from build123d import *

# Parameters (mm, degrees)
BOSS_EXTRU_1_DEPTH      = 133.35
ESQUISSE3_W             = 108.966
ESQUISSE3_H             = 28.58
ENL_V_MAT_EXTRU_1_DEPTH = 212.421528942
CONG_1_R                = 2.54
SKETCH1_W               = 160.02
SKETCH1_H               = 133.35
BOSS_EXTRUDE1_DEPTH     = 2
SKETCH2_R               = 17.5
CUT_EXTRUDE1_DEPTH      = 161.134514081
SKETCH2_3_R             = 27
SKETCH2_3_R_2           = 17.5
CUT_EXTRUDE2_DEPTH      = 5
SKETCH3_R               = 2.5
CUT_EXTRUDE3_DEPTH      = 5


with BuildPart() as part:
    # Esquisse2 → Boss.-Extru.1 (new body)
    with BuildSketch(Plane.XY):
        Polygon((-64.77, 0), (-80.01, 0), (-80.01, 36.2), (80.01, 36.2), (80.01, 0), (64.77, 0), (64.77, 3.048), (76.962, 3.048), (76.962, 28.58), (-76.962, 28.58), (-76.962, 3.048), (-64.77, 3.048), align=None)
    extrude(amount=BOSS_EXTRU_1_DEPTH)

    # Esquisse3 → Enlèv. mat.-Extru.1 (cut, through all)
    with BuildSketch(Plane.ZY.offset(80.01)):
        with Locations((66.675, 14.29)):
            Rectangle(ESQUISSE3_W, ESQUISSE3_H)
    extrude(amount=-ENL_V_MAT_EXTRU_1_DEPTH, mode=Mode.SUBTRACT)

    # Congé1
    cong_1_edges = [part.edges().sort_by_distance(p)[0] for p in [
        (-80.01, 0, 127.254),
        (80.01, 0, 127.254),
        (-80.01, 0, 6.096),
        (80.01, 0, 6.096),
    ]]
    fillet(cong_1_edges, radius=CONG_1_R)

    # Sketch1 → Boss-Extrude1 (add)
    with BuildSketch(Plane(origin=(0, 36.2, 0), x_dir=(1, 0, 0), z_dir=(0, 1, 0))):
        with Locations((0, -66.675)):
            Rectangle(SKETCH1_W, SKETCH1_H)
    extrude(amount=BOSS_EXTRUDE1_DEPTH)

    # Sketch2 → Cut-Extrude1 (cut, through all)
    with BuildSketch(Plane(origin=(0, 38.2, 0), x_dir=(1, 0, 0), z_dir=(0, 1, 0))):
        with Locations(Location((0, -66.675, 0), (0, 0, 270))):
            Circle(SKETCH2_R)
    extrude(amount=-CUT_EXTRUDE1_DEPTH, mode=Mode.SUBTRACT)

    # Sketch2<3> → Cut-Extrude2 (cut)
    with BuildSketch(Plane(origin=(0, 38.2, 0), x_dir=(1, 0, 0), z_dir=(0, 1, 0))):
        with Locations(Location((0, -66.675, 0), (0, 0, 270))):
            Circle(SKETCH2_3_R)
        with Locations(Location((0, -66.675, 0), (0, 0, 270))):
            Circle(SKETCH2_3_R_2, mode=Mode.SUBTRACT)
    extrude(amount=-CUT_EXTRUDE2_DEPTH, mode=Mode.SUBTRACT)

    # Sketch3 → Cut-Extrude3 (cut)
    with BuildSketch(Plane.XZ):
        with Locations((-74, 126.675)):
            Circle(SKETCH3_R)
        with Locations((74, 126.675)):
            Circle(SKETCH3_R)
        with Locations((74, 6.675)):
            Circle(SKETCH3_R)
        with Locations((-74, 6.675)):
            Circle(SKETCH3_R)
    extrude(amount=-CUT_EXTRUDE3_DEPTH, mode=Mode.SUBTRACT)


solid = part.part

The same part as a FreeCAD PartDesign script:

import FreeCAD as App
import Part
import Sketcher
from FreeCAD import Vector
Q = App.Units.Quantity


def edges_at(feature, points):
    """Names of the edges that pass closest to the given points."""
    edges = feature.Shape.Edges
    near = lambda p: min(range(len(edges)), key=lambda i: edges[i].distToShape(Part.Vertex(*p))[0])
    return sorted({f"Edge{near(p) + 1}" for p in points})

doc = App.newDocument("Part")
body = doc.addObject("PartDesign::Body", "Body")

sketch1 = doc.addObject("Sketcher::SketchObject", "Sketch")
body.addObject(sketch1)
sketch1.AttachmentSupport = (doc.XY_Plane, [""])
sketch1.MapMode = "FlatFace"
sketch1.addGeometry([
    Part.LineSegment(Vector(-80, 0, 0), Vector(-64.8, 0, 0)),
    Part.LineSegment(Vector(-64.8, 0, 0), Vector(-64.8, 3, 0)),
    Part.LineSegment(Vector(-64.8, 3, 0), Vector(-77, 3, 0)),
    Part.LineSegment(Vector(-77, 3, 0), Vector(-77, 28.6, 0)),
    Part.LineSegment(Vector(-77, 28.6, 0), Vector(77, 28.6, 0)),
    Part.LineSegment(Vector(77, 28.6, 0), Vector(77, 3, 0)),
    Part.LineSegment(Vector(77, 3, 0), Vector(64.8, 3, 0)),
    Part.LineSegment(Vector(64.8, 3, 0), Vector(64.8, 0, 0)),
    Part.LineSegment(Vector(64.8, 0, 0), Vector(80, 0, 0)),
    Part.LineSegment(Vector(80, 0, 0), Vector(80, 36.2, 0)),
    Part.LineSegment(Vector(80, 36.2, 0), Vector(-80, 36.2, 0)),
    Part.LineSegment(Vector(-80, 36.2, 0), Vector(-80, 0, 0)),
], False)
sketch1.addConstraint([
    Sketcher.Constraint("Coincident", 0, 2, 1, 1),
    Sketcher.Constraint("Coincident", 1, 2, 2, 1),
    Sketcher.Constraint("Coincident", 2, 2, 3, 1),
    Sketcher.Constraint("Coincident", 3, 2, 4, 1),
    Sketcher.Constraint("Coincident", 4, 2, 5, 1),
    Sketcher.Constraint("Coincident", 5, 2, 6, 1),
    Sketcher.Constraint("Coincident", 6, 2, 7, 1),
    Sketcher.Constraint("Coincident", 7, 2, 8, 1),
    Sketcher.Constraint("Coincident", 8, 2, 9, 1),
    Sketcher.Constraint("Coincident", 9, 2, 10, 1),
    Sketcher.Constraint("Coincident", 10, 2, 11, 1),
    Sketcher.Constraint("Coincident", 11, 2, 0, 1),
    Sketcher.Constraint("Horizontal", 0),
    Sketcher.Constraint("Vertical", 1),
    Sketcher.Constraint("Horizontal", 2),
    Sketcher.Constraint("Vertical", 3),
    Sketcher.Constraint("Horizontal", 4),
    Sketcher.Constraint("Vertical", 5),
    Sketcher.Constraint("Horizontal", 6),
    Sketcher.Constraint("Vertical", 7),
    Sketcher.Constraint("Horizontal", 8),
    Sketcher.Constraint("Vertical", 9),
    Sketcher.Constraint("Horizontal", 10),
    Sketcher.Constraint("Vertical", 11),
    Sketcher.Constraint("Symmetric", 0, 2, 7, 2, -1, 1),
    Sketcher.Constraint("Symmetric", 2, 2, 5, 2, -2),
    Sketcher.Constraint("Symmetric", 8, 2, 11, 2, -2),
    Sketcher.Constraint("DistanceX", 0, 1, 0, 2, Q("0.6 in")),
    Sketcher.Constraint("DistanceX", 10, 2, 10, 1, Q("6.3 in")),
    Sketcher.Constraint("DistanceX", 2, 2, 2, 1, Q("0.48 in")),
    Sketcher.Constraint("DistanceY", 1, 1, 1, 2, Q("0.12 in")),
    Sketcher.Constraint("DistanceY", 4, 2, 9, 2, Q("0.3 in")),
    Sketcher.Constraint("DistanceY", 3, 1, 3, 2, 25.532),
])
pad1 = doc.addObject("PartDesign::Pad", "Pad")
body.addObject(pad1)
pad1.Profile = sketch1
pad1.Length = Q("5.25 in")

sketch2 = doc.addObject("Sketcher::SketchObject", "Sketch001")
body.addObject(sketch2)
sketch2.AttachmentSupport = (doc.YZ_Plane, [""])
sketch2.MapMode = "FlatFace"
sketch2.AttachmentOffset = App.Placement(Vector(0, 0, -3.15 * 25.4), App.Rotation())
sketch2.addGeometry([
    Part.LineSegment(Vector(29, 12, 0), Vector(0, 12, 0)),
    Part.LineSegment(Vector(0, 12, 0), Vector(0, 121, 0)),
    Part.LineSegment(Vector(0, 121, 0), Vector(29, 121, 0)),
    Part.LineSegment(Vector(29, 121, 0), Vector(29, 12, 0)),
], False)
sketch2.addConstraint([
    Sketcher.Constraint("Coincident", 0, 2, 1, 1),
    Sketcher.Constraint("Coincident", 1, 2, 2, 1),
    Sketcher.Constraint("Coincident", 2, 2, 3, 1),
    Sketcher.Constraint("Coincident", 3, 2, 0, 1),
    Sketcher.Constraint("Horizontal", 0),
    Sketcher.Constraint("Vertical", 1),
    Sketcher.Constraint("Horizontal", 2),
    Sketcher.Constraint("Vertical", 3),
    Sketcher.Constraint("PointOnObject", 0, 2, -2),
    Sketcher.Constraint("DistanceY", 1, 1, 1, 2, Q("4.29 in")),
    Sketcher.Constraint("DistanceY", -1, 1, 0, 2, Q("0.48 in")),
    Sketcher.Constraint("DistanceX", 0, 2, 0, 1, 28.58),
])
pocket1 = doc.addObject("PartDesign::Pocket", "Pocket")
body.addObject(pocket1)
pocket1.Profile = sketch2
pocket1.Type = "ThroughAll"
pocket1.Reversed = True
doc.recompute()

fillet = doc.addObject("PartDesign::Fillet", "Fillet")
body.addObject(fillet)
fillet.Base = (pocket1, edges_at(pocket1, [
    (-80.01, 0, 127.254),
    (80.01, 0, 127.254),
    (-80.01, 0, 6.096),
    (80.01, 0, 6.096),
]))
fillet.Radius = Q("0.1 in")

sketch3 = doc.addObject("Sketcher::SketchObject", "Sketch002")
body.addObject(sketch3)
sketch3.AttachmentSupport = (doc.XZ_Plane, [""])
sketch3.MapMode = "FlatFace"
sketch3.AttachmentOffset = App.Placement(Vector(0, 0, -36.2), App.Rotation())
sketch3.addGeometry([
    Part.LineSegment(Vector(-80, 0, 0), Vector(-80, 133, 0)),
    Part.LineSegment(Vector(-80, 133, 0), Vector(80, 133, 0)),
    Part.LineSegment(Vector(80, 133, 0), Vector(80, 0, 0)),
    Part.LineSegment(Vector(80, 0, 0), Vector(-80, 0, 0)),
], False)
sketch3.addConstraint([
    Sketcher.Constraint("Coincident", 0, 2, 1, 1),
    Sketcher.Constraint("Coincident", 1, 2, 2, 1),
    Sketcher.Constraint("Coincident", 2, 2, 3, 1),
    Sketcher.Constraint("Coincident", 3, 2, 0, 1),
    Sketcher.Constraint("Vertical", 0),
    Sketcher.Constraint("Horizontal", 1),
    Sketcher.Constraint("Vertical", 2),
    Sketcher.Constraint("Horizontal", 3),
    Sketcher.Constraint("Symmetric", 2, 2, 3, 2, -1, 1),
    Sketcher.Constraint("DistanceX", 1, 1, 1, 2, Q("6.3 in")),
    Sketcher.Constraint("DistanceY", 0, 1, 0, 2, Q("5.25 in")),
])
pad2 = doc.addObject("PartDesign::Pad", "Pad001")
body.addObject(pad2)
pad2.Profile = sketch3
pad2.Length = 2
pad2.Reversed = True

sketch4 = doc.addObject("Sketcher::SketchObject", "Sketch003")
body.addObject(sketch4)
sketch4.AttachmentSupport = (doc.XZ_Plane, [""])
sketch4.MapMode = "FlatFace"
sketch4.AttachmentOffset = App.Placement(Vector(0, 0, -38.2), App.Rotation())
sketch4.addGeometry(Part.Circle(Vector(0, 67, 0), Vector(0, 0, 1), 18), False)
sketch4.addConstraint([
    Sketcher.Constraint("PointOnObject", 0, 3, -2),
    Sketcher.Constraint("Diameter", 0, 35.0),
    Sketcher.Constraint("DistanceY", -1, 1, 0, 3, Q("2.625 in")),
])
pocket2 = doc.addObject("PartDesign::Pocket", "Pocket001")
body.addObject(pocket2)
pocket2.Profile = sketch4
pocket2.Type = "ThroughAll"
pocket2.Reversed = True

sketch5 = doc.addObject("Sketcher::SketchObject", "Sketch004")
body.addObject(sketch5)
sketch5.AttachmentSupport = (doc.XZ_Plane, [""])
sketch5.MapMode = "FlatFace"
sketch5.AttachmentOffset = App.Placement(Vector(0, 0, -38.2), App.Rotation())
sketch5.addGeometry([
    Part.Circle(Vector(0, 67, 0), Vector(0, 0, 1), 27),
    Part.Circle(Vector(0, 67, 0), Vector(0, 0, 1), 18),
], False)
sketch5.addConstraint([
    Sketcher.Constraint("Coincident", 1, 3, 0, 3),
    Sketcher.Constraint("PointOnObject", 0, 3, -2),
    Sketcher.Constraint("Diameter", 0, 54.0),
    Sketcher.Constraint("Diameter", 1, 35.0),
    Sketcher.Constraint("DistanceY", -1, 1, 0, 3, Q("2.625 in")),
])
pocket3 = doc.addObject("PartDesign::Pocket", "Pocket002")
body.addObject(pocket3)
pocket3.Profile = sketch5
pocket3.Length = 5
pocket3.Reversed = True

sketch6 = doc.addObject("Sketcher::SketchObject", "Sketch005")
body.addObject(sketch6)
sketch6.AttachmentSupport = (doc.XZ_Plane, [""])
sketch6.MapMode = "FlatFace"
sketch6.addGeometry([
    Part.Circle(Vector(-74, 126.7, 0), Vector(0, 0, 1), 2.5),
    Part.Circle(Vector(74, 126.7, 0), Vector(0, 0, 1), 2.5),
    Part.Circle(Vector(74, 6.7, 0), Vector(0, 0, 1), 2.5),
    Part.Circle(Vector(-74, 6.7, 0), Vector(0, 0, 1), 2.5),
], False)
sketch6.addConstraint([
    Sketcher.Constraint("Equal", 0, 1),
    Sketcher.Constraint("Equal", 1, 2),
    Sketcher.Constraint("Equal", 2, 3),
    Sketcher.Constraint("Symmetric", 0, 3, 1, 3, -2),
    Sketcher.Constraint("Symmetric", 2, 3, 3, 3, -2),
    Sketcher.Constraint("Vertical", 1, 3, 2, 3),
    Sketcher.Constraint("Diameter", 0, 5.0),
    Sketcher.Constraint("DistanceX", 0, 3, -1, 1, 74.0),
    Sketcher.Constraint("DistanceY", -1, 1, 0, 3, 126.675),
    Sketcher.Constraint("DistanceY", -1, 1, 2, 3, 6.675),
])
pocket4 = doc.addObject("PartDesign::Pocket", "Pocket003")
body.addObject(pocket4)
pocket4.Profile = sketch6
pocket4.Length = 5

doc.recompute()
